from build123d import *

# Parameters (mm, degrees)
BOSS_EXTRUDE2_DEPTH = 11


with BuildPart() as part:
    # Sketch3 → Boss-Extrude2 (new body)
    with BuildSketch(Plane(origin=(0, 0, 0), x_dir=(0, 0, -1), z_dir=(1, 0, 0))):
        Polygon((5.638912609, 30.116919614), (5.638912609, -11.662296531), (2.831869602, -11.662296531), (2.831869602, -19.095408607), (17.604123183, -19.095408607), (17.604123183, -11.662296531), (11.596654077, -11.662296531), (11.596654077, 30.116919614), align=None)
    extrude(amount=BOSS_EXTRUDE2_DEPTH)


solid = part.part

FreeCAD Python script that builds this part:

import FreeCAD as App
import Part
import Sketcher
from FreeCAD import Vector

doc = App.newDocument("Part")
body = doc.addObject("PartDesign::Body", "Body")

sketch1 = body.newObject("Sketcher::SketchObject", "Sketch")
sketch1.AttachmentSupport = (doc.getObject("YZ_Plane"), [""])
sketch1.MapMode = "FlatFace"
sketch1.addGeometry([
    Part.LineSegment(Vector(30.1, -5.6, 0), Vector(-11.7, -5.6, 0)),
    Part.LineSegment(Vector(-11.7, -5.6, 0), Vector(-11.7, -2.8, 0)),
    Part.LineSegment(Vector(-11.7, -2.8, 0), Vector(-19.1, -2.8, 0)),
    Part.LineSegment(Vector(-19.1, -2.8, 0), Vector(-19.1, -17.6, 0)),
    Part.LineSegment(Vector(-19.1, -17.6, 0), Vector(-11.7, -17.6, 0)),
    Part.LineSegment(Vector(-11.7, -17.6, 0), Vector(-11.7, -11.6, 0)),
    Part.LineSegment(Vector(-11.7, -11.6, 0), Vector(30.1, -11.6, 0)),
    Part.LineSegment(Vector(30.1, -11.6, 0), Vector(30.1, -5.6, 0)),
], False)
sketch1.addConstraint([
    Sketcher.Constraint("Coincident", 0, 2, 1, 1),
    Sketcher.Constraint("Coincident", 1, 2, 2, 1),
    Sketcher.Constraint("Coincident", 2, 2, 3, 1),
    Sketcher.Constraint("Coincident", 3, 2, 4, 1),
    Sketcher.Constraint("Coincident", 4, 2, 5, 1),
    Sketcher.Constraint("Coincident", 5, 2, 6, 1),
    Sketcher.Constraint("Coincident", 6, 2, 7, 1),
    Sketcher.Constraint("Coincident", 7, 2, 0, 1),
    Sketcher.Constraint("Horizontal", 0),
    Sketcher.Constraint("Vertical", 1),
    Sketcher.Constraint("Horizontal", 2),
    Sketcher.Constraint("Vertical", 3),
    Sketcher.Constraint("Horizontal", 4),
    Sketcher.Constraint("Vertical", 5),
    Sketcher.Constraint("Horizontal", 6),
    Sketcher.Constraint("Vertical", 7),
    Sketcher.Constraint("Vertical", 1, 2, 4, 2),
    Sketcher.Constraint("DistanceY", 5, 1, 5, 2, 6.007469),
    Sketcher.Constraint("DistanceY", 7, 1, 7, 2, 5.957741),
    Sketcher.Constraint("DistanceX", 0, 2, 0, 1, 41.779216),
    Sketcher.Constraint("DistanceX", 2, 2, 2, 1, 7.433112),
    Sketcher.Constraint("DistanceY", 1, 1, 1, 2, 2.807043),
    Sketcher.Constraint("DistanceY", 1, 2, -1, 1, 2.83187),
    Sketcher.Constraint("DistanceX", 2, 2, -1, 1, 19.095409),
])
pad1 = body.newObject("PartDesign::Pad", "Pad")
pad1.Profile = sketch1
pad1.Length = 11

doc.recompute()
